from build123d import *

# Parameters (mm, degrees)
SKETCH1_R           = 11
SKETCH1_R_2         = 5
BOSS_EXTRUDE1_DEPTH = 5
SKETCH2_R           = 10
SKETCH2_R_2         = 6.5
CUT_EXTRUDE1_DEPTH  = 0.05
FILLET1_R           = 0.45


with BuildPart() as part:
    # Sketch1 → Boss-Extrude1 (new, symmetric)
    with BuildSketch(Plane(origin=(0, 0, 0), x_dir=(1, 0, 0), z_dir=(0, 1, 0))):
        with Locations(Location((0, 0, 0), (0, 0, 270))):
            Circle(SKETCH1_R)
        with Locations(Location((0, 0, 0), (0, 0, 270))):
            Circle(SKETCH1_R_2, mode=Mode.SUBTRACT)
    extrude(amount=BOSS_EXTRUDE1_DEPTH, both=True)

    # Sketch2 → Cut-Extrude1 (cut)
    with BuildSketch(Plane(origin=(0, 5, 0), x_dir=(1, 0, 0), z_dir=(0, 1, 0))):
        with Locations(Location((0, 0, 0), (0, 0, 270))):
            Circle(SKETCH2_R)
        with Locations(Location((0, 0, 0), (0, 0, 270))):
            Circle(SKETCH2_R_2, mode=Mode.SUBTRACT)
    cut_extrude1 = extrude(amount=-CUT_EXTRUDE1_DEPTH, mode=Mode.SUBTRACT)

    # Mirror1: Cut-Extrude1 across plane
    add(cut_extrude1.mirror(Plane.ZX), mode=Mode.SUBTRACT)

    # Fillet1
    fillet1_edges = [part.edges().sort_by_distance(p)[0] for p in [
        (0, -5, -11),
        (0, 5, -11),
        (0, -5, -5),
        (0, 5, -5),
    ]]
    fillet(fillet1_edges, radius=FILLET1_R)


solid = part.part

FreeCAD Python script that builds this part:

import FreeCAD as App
import Part
import Sketcher
Q = App.Units.Quantity


def edges_at(feature, points):
    """Names of the edges that pass closest to the given points."""
    edges = feature.Shape.Edges
    near = lambda p: min(range(len(edges)), key=lambda i: edges[i].distToShape(Part.Vertex(*p))[0])
    return sorted({f"Edge{near(p) + 1}" for p in points})

doc = App.newDocument("Part")
body = doc.addObject("PartDesign::Body", "Body")

sketch1 = doc.addObject("Sketcher::SketchObject", "Sketch")
body.addObject(sketch1)
sketch1.AttachmentSupport = (doc.XZ_Plane, [""])
sketch1.MapMode = "FlatFace"
sketch1.addGeometry([
    Part.Circle(App.Vector(0, 0, 0), App.Vector(0, 0, 1), 11),
    Part.Circle(App.Vector(0, 0, 0), App.Vector(0, 0, 1), 5),
], False)
sketch1.addConstraint([
    Sketcher.Constraint("Coincident", 0, 3, -1, 1),
    Sketcher.Constraint("Coincident", 1, 3, -1, 1),
    Sketcher.Constraint("Diameter", 0, Q("22 mm")),
    Sketcher.Constraint("Diameter", 1, Q("10 mm")),
])
pad1 = doc.addObject("PartDesign::Pad", "Pad")
body.addObject(pad1)
pad1.Profile = sketch1
pad1.Length = 10
pad1.Midplane = True

sketch2 = doc.addObject("Sketcher::SketchObject", "Sketch001")
body.addObject(sketch2)
sketch2.AttachmentSupport = (doc.XZ_Plane, [""])
sketch2.MapMode = "FlatFace"
sketch2.AttachmentOffset = App.Placement(App.Vector(0, 0, -5), App.Rotation())
sketch2.addGeometry([
    Part.Circle(App.Vector(0, 0, 0), App.Vector(0, 0, 1), 10),
    Part.Circle(App.Vector(0, 0, 0), App.Vector(0, 0, 1), 6.5),
], False)
sketch2.addConstraint([
    Sketcher.Constraint("Coincident", 0, 3, -1, 1),
    Sketcher.Constraint("Coincident", 1, 3, -1, 1),
    Sketcher.Constraint("Diameter", 0, Q("20 mm")),
    Sketcher.Constraint("Diameter", 1, Q("13 mm")),
])
pocket1 = doc.addObject("PartDesign::Pocket", "Pocket")
body.addObject(pocket1)
pocket1.Profile = sketch2
pocket1.Length = 0.05
pocket1.Reversed = True
doc.recompute()

mirrored = doc.addObject("PartDesign::Mirrored", "Mirrored")
body.addObject(mirrored)
mirrored.Originals = [pocket1]
mirrored.MirrorPlane = (doc.XZ_Plane, [""])
body.Tip = mirrored
doc.recompute()

fillet = doc.addObject("PartDesign::Fillet", "Fillet")
body.addObject(fillet)
fillet.Base = (mirrored, edges_at(mirrored, [
    (0, -5, -11),
    (0, 5, -11),
    (0, -5, -5),
    (0, 5, -5),
]))
fillet.Radius = 0.45

doc.recompute()
